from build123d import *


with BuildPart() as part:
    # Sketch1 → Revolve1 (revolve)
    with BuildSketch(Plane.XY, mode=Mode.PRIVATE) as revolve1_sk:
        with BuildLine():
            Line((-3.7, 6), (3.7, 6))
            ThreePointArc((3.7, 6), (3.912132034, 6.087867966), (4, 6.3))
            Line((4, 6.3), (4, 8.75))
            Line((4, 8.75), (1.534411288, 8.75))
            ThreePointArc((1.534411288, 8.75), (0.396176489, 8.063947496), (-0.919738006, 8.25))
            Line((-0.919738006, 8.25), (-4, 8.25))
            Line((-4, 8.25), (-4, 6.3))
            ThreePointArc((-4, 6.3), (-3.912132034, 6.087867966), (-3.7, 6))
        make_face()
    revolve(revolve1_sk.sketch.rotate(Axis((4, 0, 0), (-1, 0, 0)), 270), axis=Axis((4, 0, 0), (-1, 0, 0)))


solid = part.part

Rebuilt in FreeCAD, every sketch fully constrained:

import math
import FreeCAD as App
import Part
import Sketcher

V = App.Vector
Q = App.Units.Quantity

doc = App.newDocument("Part")
params = doc.addObject("Spreadsheet::Sheet", "Params")
for row, (alias, value) in enumerate([
    ("sketch1_radius", "0.3 mm"),
    ("sketch1_width", "7.4 mm"),
    ("sketch1_height", "2.45 mm"),
    ("sketch1_height2", "1.95 mm"),
    ("revolution_angle", "360 deg"),
], start=1):
    params.set(f"A{row}", alias)
    params.set(f"B{row}", "=" + value)
    params.setAlias(f"B{row}", alias)

body = doc.addObject("PartDesign::Body", "Body")

# Sketch on XY plane
sketch1 = body.newObject("Sketcher::SketchObject", "Sketch")
sketch1.AttachmentSupport = (doc.getObject("XY_Plane"), [""])
sketch1.MapMode = "FlatFace"
sketch1.addGeometry([
    Part.LineSegment(V(-3.7, 6, 0), V(3.7, 6, 0)),  # 0
    Part.ArcOfCircle(Part.Circle(V(3.7, 6.3, 0), V(0, 0, 1), 0.3), math.radians(-90), math.radians(0)),  # 1
    Part.LineSegment(V(4, 6.3, 0), V(4, 8.75, 0)),  # 2
    Part.LineSegment(V(4, 8.75, 0), V(1.53, 8.75, 0)),  # 3
    Part.ArcOfCircle(Part.Circle(V(0, 10.01, 0), V(0, 0, 1), 1.98), math.radians(-118), math.radians(-39)),  # 4
    Part.LineSegment(V(-0.92, 8.25, 0), V(-4, 8.25, 0)),  # 5
    Part.LineSegment(V(-4, 8.25, 0), V(-4, 6.3, 0)),  # 6
    Part.ArcOfCircle(Part.Circle(V(-3.7, 6.3, 0), V(0, 0, 1), 0.3), math.radians(-180), math.radians(-90)),  # 7
], False)
sketch1.addConstraint([
    Sketcher.Constraint("Tangent", 0, 2, 1, 1),
    Sketcher.Constraint("Tangent", 1, 2, 2, 1),
    Sketcher.Constraint("Coincident", 2, 2, 3, 1),
    Sketcher.Constraint("Coincident", 3, 2, 4, 2),
    Sketcher.Constraint("Coincident", 4, 1, 5, 1),
    Sketcher.Constraint("Coincident", 5, 2, 6, 1),
    Sketcher.Constraint("Tangent", 6, 2, 7, 1),
    Sketcher.Constraint("Tangent", 7, 2, 0, 1),
    Sketcher.Constraint("Horizontal", 0),
    Sketcher.Constraint("Vertical", 2),
    Sketcher.Constraint("Horizontal", 3),
    Sketcher.Constraint("Horizontal", 5),
    Sketcher.Constraint("Vertical", 6),
    Sketcher.Constraint("Equal", 1, 7),
    Sketcher.Constraint("PointOnObject", 4, 3, -2),
    Sketcher.Constraint("Radius", 1, Q("0.3 mm")),
    Sketcher.Constraint("DistanceX", 0, 1, 0, 2, Q("7.4 mm")),
    Sketcher.Constraint("DistanceY", -1, 1, 0, 2, Q("6 mm")),
    Sketcher.Constraint("DistanceX", -1, 1, 1, 2, Q("4 mm")),
    Sketcher.Constraint("DistanceY", 2, 1, 2, 2, Q("2.45 mm")),
    Sketcher.Constraint("DistanceY", 6, 2, 6, 1, Q("1.95 mm")),
    Sketcher.Constraint("Radius", 4, Q("1.9845 mm")),
    Sketcher.Constraint("DistanceX", 3, 2, 3, 1, Q("2.465589 mm")),
])
sketch1.setExpression("Constraints[15]", "Params.sketch1_radius")
sketch1.setExpression("Constraints[16]", "Params.sketch1_width")
sketch1.setExpression("Constraints[19]", "Params.sketch1_height")
sketch1.setExpression("Constraints[20]", "Params.sketch1_height2")
revolution = body.newObject("PartDesign::Revolution", "Revolution")
revolution.Profile = sketch1
revolution.ReferenceAxis = (sketch1, ["H_Axis"])
revolution.setExpression("Angle", "Params.revolution_angle")

doc.recompute()
